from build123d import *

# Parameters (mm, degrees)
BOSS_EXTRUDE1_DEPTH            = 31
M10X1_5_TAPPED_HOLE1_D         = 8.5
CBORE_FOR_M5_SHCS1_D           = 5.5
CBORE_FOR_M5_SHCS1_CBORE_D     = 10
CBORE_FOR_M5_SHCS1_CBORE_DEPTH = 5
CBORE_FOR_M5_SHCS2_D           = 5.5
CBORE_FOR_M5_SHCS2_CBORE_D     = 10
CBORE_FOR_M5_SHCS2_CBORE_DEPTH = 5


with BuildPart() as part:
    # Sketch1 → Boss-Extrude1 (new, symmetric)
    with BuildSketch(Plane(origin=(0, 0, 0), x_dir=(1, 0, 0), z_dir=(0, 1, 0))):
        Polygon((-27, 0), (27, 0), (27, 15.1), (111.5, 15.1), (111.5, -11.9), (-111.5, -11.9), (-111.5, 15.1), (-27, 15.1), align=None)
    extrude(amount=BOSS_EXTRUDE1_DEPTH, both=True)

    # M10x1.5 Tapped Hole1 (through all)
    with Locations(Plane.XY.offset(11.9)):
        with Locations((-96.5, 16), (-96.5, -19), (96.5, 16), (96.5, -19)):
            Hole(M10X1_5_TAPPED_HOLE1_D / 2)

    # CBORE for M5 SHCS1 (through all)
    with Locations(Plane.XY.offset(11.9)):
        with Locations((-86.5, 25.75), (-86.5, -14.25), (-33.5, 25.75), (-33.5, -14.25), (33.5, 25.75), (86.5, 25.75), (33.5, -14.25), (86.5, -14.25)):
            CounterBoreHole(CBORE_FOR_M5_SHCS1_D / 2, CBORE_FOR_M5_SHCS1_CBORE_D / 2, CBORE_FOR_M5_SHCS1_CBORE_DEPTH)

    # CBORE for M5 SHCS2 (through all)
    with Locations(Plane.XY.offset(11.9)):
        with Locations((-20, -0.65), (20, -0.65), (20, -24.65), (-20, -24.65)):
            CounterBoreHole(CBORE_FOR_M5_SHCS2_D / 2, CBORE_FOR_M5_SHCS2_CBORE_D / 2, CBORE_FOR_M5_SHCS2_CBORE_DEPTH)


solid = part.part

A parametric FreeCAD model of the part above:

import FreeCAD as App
import Part
import Sketcher
from FreeCAD import Vector
Q = App.Units.Quantity

doc = App.newDocument("Part")
body = doc.addObject("PartDesign::Body", "Body")

# Sketch on XZ plane
sketch1 = body.newObject("Sketcher::SketchObject", "Sketch")
sketch1.AttachmentSupport = (doc.getObject("XZ_Plane"), [""])
sketch1.MapMode = "FlatFace"
sketch1.addGeometry([
    Part.LineSegment(Vector(27, 0, 0), Vector(-27, 0, 0)),  # 0
    Part.LineSegment(Vector(-27, 0, 0), Vector(-27, -15, 0)),  # 1
    Part.LineSegment(Vector(-27, -15, 0), Vector(-112, -15, 0)),  # 2
    Part.LineSegment(Vector(-112, -15, 0), Vector(-112, 12, 0)),  # 3
    Part.LineSegment(Vector(-112, 12, 0), Vector(112, 12, 0)),  # 4
    Part.LineSegment(Vector(112, 12, 0), Vector(112, -15, 0)),  # 5
    Part.LineSegment(Vector(112, -15, 0), Vector(27, -15, 0)),  # 6
    Part.LineSegment(Vector(27, -15, 0), Vector(27, 0, 0)),  # 7
], False)
sketch1.addConstraint([
    Sketcher.Constraint("Coincident", 0, 2, 1, 1),
    Sketcher.Constraint("Coincident", 1, 2, 2, 1),
    Sketcher.Constraint("Coincident", 2, 2, 3, 1),
    Sketcher.Constraint("Coincident", 3, 2, 4, 1),
    Sketcher.Constraint("Coincident", 4, 2, 5, 1),
    Sketcher.Constraint("Coincident", 5, 2, 6, 1),
    Sketcher.Constraint("Coincident", 6, 2, 7, 1),
    Sketcher.Constraint("Coincident", 7, 2, 0, 1),
    Sketcher.Constraint("Horizontal", 0),
    Sketcher.Constraint("Vertical", 1),
    Sketcher.Constraint("Horizontal", 2),
    Sketcher.Constraint("Vertical", 3),
    Sketcher.Constraint("Horizontal", 4),
    Sketcher.Constraint("Vertical", 5),
    Sketcher.Constraint("Horizontal", 6),
    Sketcher.Constraint("Vertical", 7),
    Sketcher.Constraint("Symmetric", 0, 2, 7, 2, -1, 1),
    Sketcher.Constraint("Symmetric", 2, 2, 5, 2, -2),
    Sketcher.Constraint("DistanceX", 0, 2, 0, 1, Q("54 mm")),
    Sketcher.Constraint("DistanceX", 4, 1, 4, 2, Q("223 mm")),
    Sketcher.Constraint("DistanceY", 3, 1, 3, 2, Q("27 mm")),
    Sketcher.Constraint("DistanceY", 1, 2, 1, 1, Q("15.1 mm")),
])
pad1 = body.newObject("PartDesign::Pad", "Pad")
pad1.Profile = sketch1
pad1.Length = 62
pad1.Midplane = True

# Sketch on XY plane
sketch2 = body.newObject("Sketcher::SketchObject", "Sketch001")
sketch2.AttachmentSupport = (doc.getObject("XY_Plane"), [""])
sketch2.MapMode = "FlatFace"
sketch2.AttachmentOffset = App.Placement(Vector(0, 0, 11.9), App.Rotation())
sketch2.addGeometry([
    Part.Circle(Vector(-96.5, 16, 0), Vector(0, 0, 1), 4.2),
    Part.Circle(Vector(-96.5, -19, 0), Vector(0, 0, 1), 4.2),
    Part.Circle(Vector(96.5, 16, 0), Vector(0, 0, 1), 4.2),
    Part.Circle(Vector(96.5, -19, 0), Vector(0, 0, 1), 4.2),
], False)
sketch2.addConstraint([
    Sketcher.Constraint("Equal", 0, 1),
    Sketcher.Constraint("Equal", 1, 2),
    Sketcher.Constraint("Equal", 2, 3),
    Sketcher.Constraint("Symmetric", 0, 3, 2, 3, -2),
    Sketcher.Constraint("Symmetric", 1, 3, 3, 3, -2),
    Sketcher.Constraint("Vertical", 0, 3, 1, 3),
    Sketcher.Constraint("Diameter", 0, Q("8.5 mm")),
    Sketcher.Constraint("DistanceY", -1, 1, 0, 3, Q("16 mm")),
    Sketcher.Constraint("DistanceY", 1, 3, -1, 1, Q("19 mm")),
    Sketcher.Constraint("DistanceX", 0, 3, 2, 3, Q("193 mm")),
])
doc.recompute()
hole = body.newObject("PartDesign::Hole", "Hole")
hole.Profile = sketch2
hole.ThreadType = "None"
hole.Diameter = 8.5
hole.DepthType = "ThroughAll"

# Sketch on XY plane
sketch3 = body.newObject("Sketcher::SketchObject", "Sketch002")
sketch3.AttachmentSupport = (doc.getObject("XY_Plane"), [""])
sketch3.MapMode = "FlatFace"
sketch3.AttachmentOffset = App.Placement(Vector(0, 0, 11.9), App.Rotation())
sketch3.addGeometry([
    Part.Circle(Vector(-86.5, 25.8, 0), Vector(0, 0, 1), 2.8),  # 0
    Part.Circle(Vector(-86.5, -14.2, 0), Vector(0, 0, 1), 2.8),  # 1
    Part.Circle(Vector(-33.5, 25.8, 0), Vector(0, 0, 1), 2.8),  # 2
    Part.Circle(Vector(-33.5, -14.2, 0), Vector(0, 0, 1), 2.8),  # 3
    Part.Circle(Vector(33.5, 25.8, 0), Vector(0, 0, 1), 2.8),  # 4
    Part.Circle(Vector(86.5, 25.8, 0), Vector(0, 0, 1), 2.8),  # 5
    Part.Circle(Vector(33.5, -14.2, 0), Vector(0, 0, 1), 2.8),  # 6
    Part.Circle(Vector(86.5, -14.2, 0), Vector(0, 0, 1), 2.8),  # 7
], False)
sketch3.addConstraint([
    Sketcher.Constraint("Equal", 0, 1),
    Sketcher.Constraint("Equal", 1, 2),
    Sketcher.Constraint("Equal", 2, 3),
    Sketcher.Constraint("Equal", 3, 4),
    Sketcher.Constraint("Equal", 4, 5),
    Sketcher.Constraint("Equal", 5, 6),
    Sketcher.Constraint("Equal", 6, 7),
    Sketcher.Constraint("Symmetric", 2, 3, 4, 3, -2),
    Sketcher.Constraint("Symmetric", 0, 3, 5, 3, -2),
    Sketcher.Constraint("Symmetric", 3, 3, 6, 3, -2),
    Sketcher.Constraint("Symmetric", 1, 3, 7, 3, -2),
    Sketcher.Constraint("Horizontal", 0, 3, 2, 3),
    Sketcher.Constraint("Horizontal", 1, 3, 3, 3),
    Sketcher.Constraint("Vertical", 0, 3, 1, 3),
    Sketcher.Constraint("Vertical", 2, 3, 3, 3),
    Sketcher.Constraint("Diameter", 0, Q("5.5 mm")),
    Sketcher.Constraint("DistanceY", 1, 3, 0, 3, Q("40 mm")),
    Sketcher.Constraint("DistanceX", 0, 3, 2, 3, Q("53 mm")),
    Sketcher.Constraint("DistanceX", 2, 3, 4, 3, Q("67 mm")),
    Sketcher.Constraint("DistanceY", -1, 1, 0, 3, Q("25.75 mm")),
])
doc.recompute()
hole2 = body.newObject("PartDesign::Hole", "Hole001")
hole2.Profile = sketch3
hole2.ThreadType = "None"
hole2.Diameter = 5.5
hole2.DepthType = "ThroughAll"
hole2.HoleCutType = "Counterbore"
hole2.HoleCutDiameter = 10
hole2.HoleCutDepth = 5

# Sketch on XY plane
sketch4 = body.newObject("Sketcher::SketchObject", "Sketch003")
sketch4.AttachmentSupport = (doc.getObject("XY_Plane"), [""])
sketch4.MapMode = "FlatFace"
sketch4.AttachmentOffset = App.Placement(Vector(0, 0, 11.9), App.Rotation())
sketch4.addGeometry([
    Part.Circle(Vector(-20, -0.7, 0), Vector(0, 0, 1), 2.8),
    Part.Circle(Vector(20, -0.7, 0), Vector(0, 0, 1), 2.8),
    Part.Circle(Vector(20, -24.6, 0), Vector(0, 0, 1), 2.8),
    Part.Circle(Vector(-20, -24.6, 0), Vector(0, 0, 1), 2.8),
], False)
sketch4.addConstraint([
    Sketcher.Constraint("Equal", 0, 1),
    Sketcher.Constraint("Equal", 1, 2),
    Sketcher.Constraint("Equal", 2, 3),
    Sketcher.Constraint("Symmetric", 0, 3, 1, 3, -2),
    Sketcher.Constraint("Symmetric", 2, 3, 3, 3, -2),
    Sketcher.Constraint("Vertical", 1, 3, 2, 3),
    Sketcher.Constraint("Diameter", 0, Q("5.5 mm")),
    Sketcher.Constraint("DistanceX", 0, 3, -1, 1, Q("20 mm")),
    Sketcher.Constraint("DistanceY", 2, 3, 1, 3, Q("24 mm")),
    Sketcher.Constraint("DistanceY", 0, 3, -1, 1, Q("0.65 mm")),
])
doc.recompute()
hole3 = body.newObject("PartDesign::Hole", "Hole002")
hole3.Profile = sketch4
hole3.ThreadType = "None"
hole3.Diameter = 5.5
hole3.DepthType = "ThroughAll"
hole3.HoleCutType = "Counterbore"
hole3.HoleCutDiameter = 10
hole3.HoleCutDepth = 5

doc.recompute()
